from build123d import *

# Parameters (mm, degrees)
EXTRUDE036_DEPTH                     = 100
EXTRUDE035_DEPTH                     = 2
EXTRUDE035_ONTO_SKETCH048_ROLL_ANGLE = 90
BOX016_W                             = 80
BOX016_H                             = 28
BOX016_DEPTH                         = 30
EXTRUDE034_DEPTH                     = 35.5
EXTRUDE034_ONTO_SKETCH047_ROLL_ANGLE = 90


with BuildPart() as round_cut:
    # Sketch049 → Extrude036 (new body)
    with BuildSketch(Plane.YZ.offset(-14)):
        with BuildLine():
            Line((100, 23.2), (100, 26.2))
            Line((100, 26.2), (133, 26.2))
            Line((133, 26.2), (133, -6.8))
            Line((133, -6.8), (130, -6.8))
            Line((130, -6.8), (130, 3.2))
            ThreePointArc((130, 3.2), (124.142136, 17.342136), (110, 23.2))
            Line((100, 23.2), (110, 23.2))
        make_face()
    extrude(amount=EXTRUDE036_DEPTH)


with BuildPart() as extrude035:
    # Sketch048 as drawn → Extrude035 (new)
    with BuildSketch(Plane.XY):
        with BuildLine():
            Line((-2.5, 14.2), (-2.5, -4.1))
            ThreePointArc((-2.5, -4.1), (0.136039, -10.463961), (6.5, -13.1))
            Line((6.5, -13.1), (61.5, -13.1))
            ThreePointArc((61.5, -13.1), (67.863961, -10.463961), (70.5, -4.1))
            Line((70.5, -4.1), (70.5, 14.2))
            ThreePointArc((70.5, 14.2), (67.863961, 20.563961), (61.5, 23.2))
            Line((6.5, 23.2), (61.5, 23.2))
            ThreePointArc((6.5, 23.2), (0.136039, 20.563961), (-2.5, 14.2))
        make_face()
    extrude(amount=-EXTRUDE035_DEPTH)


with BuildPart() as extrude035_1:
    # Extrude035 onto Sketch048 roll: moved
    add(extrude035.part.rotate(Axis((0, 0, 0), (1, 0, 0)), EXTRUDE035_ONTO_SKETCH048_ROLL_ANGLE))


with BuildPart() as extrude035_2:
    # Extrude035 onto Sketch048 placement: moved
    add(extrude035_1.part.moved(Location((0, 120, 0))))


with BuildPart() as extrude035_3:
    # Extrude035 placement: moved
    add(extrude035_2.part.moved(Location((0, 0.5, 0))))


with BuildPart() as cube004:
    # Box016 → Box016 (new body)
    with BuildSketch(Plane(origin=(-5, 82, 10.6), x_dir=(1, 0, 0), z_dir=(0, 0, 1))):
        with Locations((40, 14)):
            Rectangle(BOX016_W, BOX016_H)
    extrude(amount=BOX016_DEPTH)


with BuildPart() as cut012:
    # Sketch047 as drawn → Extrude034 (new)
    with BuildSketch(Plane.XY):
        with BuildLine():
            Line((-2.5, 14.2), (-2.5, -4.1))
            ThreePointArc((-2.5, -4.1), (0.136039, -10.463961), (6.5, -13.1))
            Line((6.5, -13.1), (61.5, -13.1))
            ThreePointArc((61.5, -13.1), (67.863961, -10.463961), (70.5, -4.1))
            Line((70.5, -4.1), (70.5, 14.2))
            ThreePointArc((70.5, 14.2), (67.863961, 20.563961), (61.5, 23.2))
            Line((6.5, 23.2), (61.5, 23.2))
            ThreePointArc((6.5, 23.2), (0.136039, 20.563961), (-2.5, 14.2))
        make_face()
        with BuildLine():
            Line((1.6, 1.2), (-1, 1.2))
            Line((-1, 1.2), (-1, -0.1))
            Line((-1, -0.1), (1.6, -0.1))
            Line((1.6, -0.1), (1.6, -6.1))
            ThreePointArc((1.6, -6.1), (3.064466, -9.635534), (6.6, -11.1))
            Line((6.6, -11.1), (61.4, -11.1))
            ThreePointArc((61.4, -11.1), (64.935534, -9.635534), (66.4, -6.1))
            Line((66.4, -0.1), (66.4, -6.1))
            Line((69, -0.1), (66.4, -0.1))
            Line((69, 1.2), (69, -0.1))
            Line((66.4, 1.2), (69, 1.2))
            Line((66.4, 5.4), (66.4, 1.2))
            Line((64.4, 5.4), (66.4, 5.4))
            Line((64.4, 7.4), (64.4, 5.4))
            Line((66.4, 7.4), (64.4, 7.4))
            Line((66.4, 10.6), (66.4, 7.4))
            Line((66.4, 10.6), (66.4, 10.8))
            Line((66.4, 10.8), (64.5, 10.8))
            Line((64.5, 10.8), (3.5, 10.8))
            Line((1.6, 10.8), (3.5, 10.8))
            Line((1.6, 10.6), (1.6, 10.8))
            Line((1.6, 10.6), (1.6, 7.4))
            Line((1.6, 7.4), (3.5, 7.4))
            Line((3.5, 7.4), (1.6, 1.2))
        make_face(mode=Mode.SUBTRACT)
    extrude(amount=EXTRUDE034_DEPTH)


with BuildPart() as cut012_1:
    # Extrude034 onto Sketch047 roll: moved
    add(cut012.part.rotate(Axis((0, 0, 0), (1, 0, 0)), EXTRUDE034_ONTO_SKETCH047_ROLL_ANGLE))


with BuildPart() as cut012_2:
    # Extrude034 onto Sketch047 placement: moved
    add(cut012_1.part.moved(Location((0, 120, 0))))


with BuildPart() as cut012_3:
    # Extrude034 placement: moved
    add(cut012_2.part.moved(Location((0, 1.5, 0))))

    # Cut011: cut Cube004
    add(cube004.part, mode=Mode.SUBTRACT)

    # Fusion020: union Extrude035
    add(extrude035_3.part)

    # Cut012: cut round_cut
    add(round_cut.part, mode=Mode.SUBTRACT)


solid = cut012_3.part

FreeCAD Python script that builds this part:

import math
import FreeCAD as App
import Part
import Sketcher
from FreeCAD import Vector
Q = App.Units.Quantity

doc = App.newDocument("Part")
params = doc.addObject("Spreadsheet::Sheet", "Params")
for row, (alias, value) in enumerate([
    ("sketch1_radius", "19.999999 mm"),
    ("sketch1_width", "10 mm"),
    ("sketch1_width2", "3 mm"),
    ("pad1_length", "100 mm"),
    ("sketch2_radius", "9 mm"),
    ("sketch2_width", "55 mm"),
    ("sketch2_height", "18.3 mm"),
    ("pad2_length", "2 mm"),
    ("sketch3_width", "80 mm"),
    ("sketch3_height", "28 mm"),
    ("pad3_length", "30 mm"),
    ("sketch4_radius", "9 mm"),
    ("sketch4_radius2", "5 mm"),
    ("sketch4_width", "55 mm"),
    ("sketch4_width2", "2 mm"),
    ("sketch4_height", "6 mm"),
    ("pad4_length", "35.5 mm"),
], start=1):
    params.set(f"A{row}", alias)
    params.set(f"B{row}", "=" + value)
    params.setAlias(f"B{row}", alias)

body = doc.addObject("PartDesign::Body", "Body")

sketch1 = doc.addObject("Sketcher::SketchObject", "Sketch")
body.addObject(sketch1)
sketch1.AttachmentSupport = (doc.YZ_Plane, [""])
sketch1.MapMode = "FlatFace"
sketch1.AttachmentOffset = App.Placement(Vector(0, 0, -14), App.Rotation())
sketch1.addGeometry([
    Part.LineSegment(Vector(100, 26.2, 0), Vector(100, 23.2, 0)),
    Part.LineSegment(Vector(100, 23.2, 0), Vector(110, 23.2, 0)),
    Part.ArcOfCircle(Part.Circle(Vector(110.000001, 3.200001, 0), Vector(0, 0, 1), 19.999999), math.radians(-0.000004), math.radians(90.000004)),
    Part.LineSegment(Vector(130, 3.2, 0), Vector(130, -6.8, 0)),
    Part.LineSegment(Vector(130, -6.8, 0), Vector(133, -6.8, 0)),
    Part.LineSegment(Vector(133, -6.8, 0), Vector(133, 26.2, 0)),
    Part.LineSegment(Vector(133, 26.2, 0), Vector(100, 26.2, 0)),
], False)
sketch1.addConstraint([
    Sketcher.Constraint("Coincident", 0, 2, 1, 1),
    Sketcher.Constraint("Tangent", 1, 2, 2, 2),
    Sketcher.Constraint("Tangent", 2, 1, 3, 1),
    Sketcher.Constraint("Coincident", 3, 2, 4, 1),
    Sketcher.Constraint("Coincident", 4, 2, 5, 1),
    Sketcher.Constraint("Coincident", 5, 2, 6, 1),
    Sketcher.Constraint("Coincident", 6, 2, 0, 1),
    Sketcher.Constraint("Vertical", 0),
    Sketcher.Constraint("Horizontal", 1),
    Sketcher.Constraint("Vertical", 3),
    Sketcher.Constraint("Horizontal", 4),
    Sketcher.Constraint("Vertical", 5),
    Sketcher.Constraint("Horizontal", 6),
    Sketcher.Constraint("Equal", 4, 0),
    Sketcher.Constraint("Equal", 1, 3),
    Sketcher.Constraint("Radius", 2, Q("19.999999 mm")),
    Sketcher.Constraint("DistanceX", 1, 1, 1, 2, Q("10 mm")),
    Sketcher.Constraint("DistanceX", 4, 1, 4, 2, Q("3 mm")),
    Sketcher.Constraint("DistanceX", -1, 1, 2, 3, Q("110.000001 mm")),
    Sketcher.Constraint("DistanceY", -1, 1, 2, 3, Q("3.200001 mm")),
])
sketch1.setExpression("Constraints[15]", "Params.sketch1_radius")
sketch1.setExpression("Constraints[16]", "Params.sketch1_width")
sketch1.setExpression("Constraints[17]", "Params.sketch1_width2")
pad1 = doc.addObject("PartDesign::Pad", "Pad")
body.addObject(pad1)
pad1.Profile = sketch1
pad1.setExpression("Length", "Params.pad1_length")
body2 = doc.addObject("PartDesign::Body", "Body001")

sketch2 = doc.addObject("Sketcher::SketchObject", "Sketch001")
body2.addObject(sketch2)
sketch2.AttachmentSupport = (doc.getObject("XY_Plane001"), [""])
sketch2.MapMode = "FlatFace"
sketch2.addGeometry([
    Part.LineSegment(Vector(-2.5, 14.2, 0), Vector(-2.5, -4.1, 0)),
    Part.ArcOfCircle(Part.Circle(Vector(6.5, -4.1, 0), Vector(0, 0, 1), 9), math.radians(-179.999999), math.radians(-90.000001)),
    Part.LineSegment(Vector(6.5, -13.1, 0), Vector(61.5, -13.1, 0)),
    Part.ArcOfCircle(Part.Circle(Vector(61.5, -4.1, 0), Vector(0, 0, 1), 9), math.radians(-89.999999), math.radians(-0.000001)),
    Part.LineSegment(Vector(70.5, -4.1, 0), Vector(70.5, 14.2, 0)),
    Part.ArcOfCircle(Part.Circle(Vector(61.5, 14.2, 0), Vector(0, 0, 1), 9), math.radians(0.000001), math.radians(89.999999)),
    Part.LineSegment(Vector(61.5, 23.2, 0), Vector(6.5, 23.2, 0)),
    Part.ArcOfCircle(Part.Circle(Vector(6.5, 14.2, 0), Vector(0, 0, 1), 9), math.radians(90.000001), math.radians(179.999999)),
], False)
sketch2.addConstraint([
    Sketcher.Constraint("Tangent", 0, 2, 1, 1),
    Sketcher.Constraint("Tangent", 1, 2, 2, 1),
    Sketcher.Constraint("Tangent", 2, 2, 3, 1),
    Sketcher.Constraint("Tangent", 3, 2, 4, 1),
    Sketcher.Constraint("Tangent", 4, 2, 5, 1),
    Sketcher.Constraint("Tangent", 5, 2, 6, 1),
    Sketcher.Constraint("Tangent", 6, 2, 7, 1),
    Sketcher.Constraint("Tangent", 7, 2, 0, 1),
    Sketcher.Constraint("Vertical", 0),
    Sketcher.Constraint("Horizontal", 2),
    Sketcher.Constraint("Vertical", 4),
    Sketcher.Constraint("Horizontal", 6),
    Sketcher.Constraint("Equal", 1, 3),
    Sketcher.Constraint("Equal", 3, 5),
    Sketcher.Constraint("Equal", 5, 7),
    Sketcher.Constraint("Radius", 1, Q("9 mm")),
    Sketcher.Constraint("DistanceX", 2, 1, 2, 2, Q("55 mm")),
    Sketcher.Constraint("DistanceY", 0, 2, 0, 1, Q("18.3 mm")),
    Sketcher.Constraint("DistanceX", -1, 1, 1, 3, Q("6.5 mm")),
    Sketcher.Constraint("DistanceY", 1, 3, -1, 1, Q("4.1 mm")),
])
sketch2.setExpression("Constraints[15]", "Params.sketch2_radius")
sketch2.setExpression("Constraints[16]", "Params.sketch2_width")
sketch2.setExpression("Constraints[17]", "Params.sketch2_height")
pad2 = doc.addObject("PartDesign::Pad", "Pad001")
body2.addObject(pad2)
pad2.Profile = sketch2
pad2.setExpression("Length", "Params.pad2_length")
pad2.Reversed = True
body3 = doc.addObject("PartDesign::Body", "Body002")
doc.recompute()

body2.Placement = App.Placement(Vector(0, 0, 0), App.Rotation(Vector(1, 0, 0), 90))
boolean = doc.addObject("PartDesign::Boolean", "Boolean")
body3.addObject(boolean)
boolean.Type = "Fuse"
boolean.addObjects([body2])
body4 = doc.addObject("PartDesign::Body", "Body003")
doc.recompute()

body3.Placement = App.Placement(Vector(0, 120, 0), App.Rotation(Vector(0, 0, 1), 0))
boolean2 = doc.addObject("PartDesign::Boolean", "Boolean001")
body4.addObject(boolean2)
boolean2.Type = "Fuse"
boolean2.addObjects([body3])
body5 = doc.addObject("PartDesign::Body", "Body004")
doc.recompute()

body4.Placement = App.Placement(Vector(0, 0.5, 0), App.Rotation(Vector(0, 0, 1), 0))
boolean3 = doc.addObject("PartDesign::Boolean", "Boolean002")
body5.addObject(boolean3)
boolean3.Type = "Fuse"
boolean3.addObjects([body4])
body6 = doc.addObject("PartDesign::Body", "Body005")

sketch3 = doc.addObject("Sketcher::SketchObject", "Sketch002")
body6.addObject(sketch3)
sketch3.AttachmentSupport = (doc.getObject("XY_Plane005"), [""])
sketch3.MapMode = "FlatFace"
sketch3.AttachmentOffset = App.Placement(Vector(0, 0, 10.6), App.Rotation())
sketch3.addGeometry([
    Part.LineSegment(Vector(-5, 110, 0), Vector(-5, 82, 0)),
    Part.LineSegment(Vector(-5, 82, 0), Vector(75, 82, 0)),
    Part.LineSegment(Vector(75, 82, 0), Vector(75, 110, 0)),
    Part.LineSegment(Vector(75, 110, 0), Vector(-5, 110, 0)),
], False)
sketch3.addConstraint([
    Sketcher.Constraint("Coincident", 0, 2, 1, 1),
    Sketcher.Constraint("Coincident", 1, 2, 2, 1),
    Sketcher.Constraint("Coincident", 2, 2, 3, 1),
    Sketcher.Constraint("Coincident", 3, 2, 0, 1),
    Sketcher.Constraint("Vertical", 0),
    Sketcher.Constraint("Horizontal", 1),
    Sketcher.Constraint("Vertical", 2),
    Sketcher.Constraint("Horizontal", 3),
    Sketcher.Constraint("DistanceX", 1, 1, 1, 2, Q("80 mm")),
    Sketcher.Constraint("DistanceY", 0, 2, 0, 1, Q("28 mm")),
    Sketcher.Constraint("DistanceX", 0, 2, -1, 1, Q("5 mm")),
    Sketcher.Constraint("DistanceY", -1, 1, 0, 2, Q("82 mm")),
])
sketch3.setExpression("Constraints[8]", "Params.sketch3_width")
sketch3.setExpression("Constraints[9]", "Params.sketch3_height")
pad3 = doc.addObject("PartDesign::Pad", "Pad002")
body6.addObject(pad3)
pad3.Profile = sketch3
pad3.setExpression("Length", "Params.pad3_length")
body7 = doc.addObject("PartDesign::Body", "Body006")

sketch4 = doc.addObject("Sketcher::SketchObject", "Sketch003")
body7.addObject(sketch4)
sketch4.AttachmentSupport = (doc.getObject("XY_Plane006"), [""])
sketch4.MapMode = "FlatFace"
sketch4.addGeometry([
    Part.LineSegment(Vector(-2.5, 14.2, 0), Vector(-2.5, -4.1, 0)),
    Part.ArcOfCircle(Part.Circle(Vector(6.5, -4.1, 0), Vector(0, 0, 1), 9), math.radians(-179.999999), math.radians(-90.000001)),
    Part.LineSegment(Vector(6.5, -13.1, 0), Vector(61.5, -13.1, 0)),
    Part.ArcOfCircle(Part.Circle(Vector(61.5, -4.1, 0), Vector(0, 0, 1), 9), math.radians(-89.999999), math.radians(-0.000001)),
    Part.LineSegment(Vector(70.5, -4.1, 0), Vector(70.5, 14.2, 0)),
    Part.ArcOfCircle(Part.Circle(Vector(61.5, 14.2, 0), Vector(0, 0, 1), 9), math.radians(0.000001), math.radians(89.999999)),
    Part.LineSegment(Vector(61.5, 23.2, 0), Vector(6.5, 23.2, 0)),
    Part.ArcOfCircle(Part.Circle(Vector(6.5, 14.2, 0), Vector(0, 0, 1), 9), math.radians(90.000001), math.radians(179.999999)),
    Part.LineSegment(Vector(-1, 1.2, 0), Vector(1.6, 1.2, 0)),
    Part.LineSegment(Vector(1.6, 1.2, 0), Vector(3.5, 7.4, 0)),
    Part.LineSegment(Vector(3.5, 7.4, 0), Vector(1.6, 7.4, 0)),
    Part.LineSegment(Vector(1.6, 7.4, 0), Vector(1.6, 10.8, 0)),
    Part.LineSegment(Vector(1.6, 10.8, 0), Vector(66.4, 10.8, 0)),
    Part.LineSegment(Vector(66.4, 10.8, 0), Vector(66.4, 7.4, 0)),
    Part.LineSegment(Vector(66.4, 7.4, 0), Vector(64.4, 7.4, 0)),
    Part.LineSegment(Vector(64.4, 7.4, 0), Vector(64.4, 5.4, 0)),
    Part.LineSegment(Vector(64.4, 5.4, 0), Vector(66.4, 5.4, 0)),
    Part.LineSegment(Vector(66.4, 5.4, 0), Vector(66.4, 1.2, 0)),
    Part.LineSegment(Vector(66.4, 1.2, 0), Vector(69, 1.2, 0)),
    Part.LineSegment(Vector(69, 1.2, 0), Vector(69, -0.1, 0)),
    Part.LineSegment(Vector(69, -0.1, 0), Vector(66.4, -0.1, 0)),
    Part.LineSegment(Vector(66.4, -0.1, 0), Vector(66.4, -6.1, 0)),
    Part.ArcOfCircle(Part.Circle(Vector(61.4, -6.1, 0), Vector(0, 0, 1), 5), math.radians(-90.000004), math.radians(0.000004)),
    Part.LineSegment(Vector(61.4, -11.1, 0), Vector(6.6, -11.1, 0)),
    Part.ArcOfCircle(Part.Circle(Vector(6.6, -6.1, 0), Vector(0, 0, 1), 5), math.radians(179.999996), math.radians(270.000004)),
    Part.LineSegment(Vector(1.6, -6.1, 0), Vector(1.6, -0.1, 0)),
    Part.LineSegment(Vector(1.6, -0.1, 0), Vector(-1, -0.1, 0)),
    Part.LineSegment(Vector(-1, -0.1, 0), Vector(-1, 1.2, 0)),
], False)
sketch4.addConstraint([
    Sketcher.Constraint("Tangent", 0, 2, 1, 1),
    Sketcher.Constraint("Tangent", 1, 2, 2, 1),
    Sketcher.Constraint("Tangent", 2, 2, 3, 1),
    Sketcher.Constraint("Tangent", 3, 2, 4, 1),
    Sketcher.Constraint("Tangent", 4, 2, 5, 1),
    Sketcher.Constraint("Tangent", 5, 2, 6, 1),
    Sketcher.Constraint("Tangent", 6, 2, 7, 1),
    Sketcher.Constraint("Tangent", 7, 2, 0, 1),
    Sketcher.Constraint("Coincident", 8, 2, 9, 1),
    Sketcher.Constraint("Coincident", 9, 2, 10, 1),
    Sketcher.Constraint("Coincident", 10, 2, 11, 1),
    Sketcher.Constraint("Coincident", 11, 2, 12, 1),
    Sketcher.Constraint("Coincident", 12, 2, 13, 1),
    Sketcher.Constraint("Coincident", 13, 2, 14, 1),
    Sketcher.Constraint("Coincident", 14, 2, 15, 1),
    Sketcher.Constraint("Coincident", 15, 2, 16, 1),
    Sketcher.Constraint("Coincident", 16, 2, 17, 1),
    Sketcher.Constraint("Coincident", 17, 2, 18, 1),
    Sketcher.Constraint("Coincident", 18, 2, 19, 1),
    Sketcher.Constraint("Coincident", 19, 2, 20, 1),
    Sketcher.Constraint("Coincident", 20, 2, 21, 1),
    Sketcher.Constraint("Tangent", 21, 2, 22, 2),
    Sketcher.Constraint("Tangent", 22, 1, 23, 1),
    Sketcher.Constraint("Tangent", 23, 2, 24, 2),
    Sketcher.Constraint("Tangent", 24, 1, 25, 1),
    Sketcher.Constraint("Coincident", 25, 2, 26, 1),
    Sketcher.Constraint("Coincident", 26, 2, 27, 1),
    Sketcher.Constraint("Coincident", 27, 2, 8, 1),
    Sketcher.Constraint("Vertical", 0),
    Sketcher.Constraint("Horizontal", 2),
    Sketcher.Constraint("Vertical", 4),
    Sketcher.Constraint("Horizontal", 6),
    Sketcher.Constraint("Horizontal", 8),
    Sketcher.Constraint("Horizontal", 10),
    Sketcher.Constraint("Vertical", 11),
    Sketcher.Constraint("Horizontal", 12),
    Sketcher.Constraint("Vertical", 13),
    Sketcher.Constraint("Horizontal", 14),
    Sketcher.Constraint("Vertical", 15),
    Sketcher.Constraint("Horizontal", 16),
    Sketcher.Constraint("Vertical", 17),
    Sketcher.Constraint("Horizontal", 18),
    Sketcher.Constraint("Vertical", 19),
    Sketcher.Constraint("Horizontal", 20),
    Sketcher.Constraint("Vertical", 21),
    Sketcher.Constraint("Horizontal", 23),
    Sketcher.Constraint("Vertical", 25),
    Sketcher.Constraint("Horizontal", 26),
    Sketcher.Constraint("Vertical", 27),
    Sketcher.Constraint("Equal", 1, 3),
    Sketcher.Constraint("Equal", 3, 5),
    Sketcher.Constraint("Equal", 5, 7),
    Sketcher.Constraint("Equal", 22, 24),
    Sketcher.Constraint("Horizontal", 10, 2, 13, 2),
    Sketcher.Constraint("Horizontal", 8, 2, 17, 2),
    Sketcher.Constraint("Horizontal", 20, 2, 25, 2),
    Sketcher.Constraint("Vertical", 8, 2, 10, 2),
    Sketcher.Constraint("Vertical", 13, 2, 16, 2),
    Sketcher.Constraint("Vertical", 17, 2, 20, 2),
    Sketcher.Constraint("Vertical", 11, 2, 24, 1),
    Sketcher.Constraint("Equal", 8, 18),
    Sketcher.Constraint("Equal", 16, 15),
    Sketcher.Constraint("Radius", 1, Q("9 mm")),
    Sketcher.Constraint("Radius", 22, Q("5 mm")),
    Sketcher.Constraint("DistanceX", 2, 1, 2, 2, Q("55 mm")),
    Sketcher.Constraint("DistanceX", 14, 2, 14, 1, Q("2 mm")),
    Sketcher.Constraint("DistanceY", 21, 2, 21, 1, Q("6 mm")),
    Sketcher.Constraint("DistanceX", 8, 1, 8, 2, Q("2.6 mm")),
    Sketcher.Constraint("DistanceX", 10, 2, 10, 1, Q("1.9 mm")),
    Sketcher.Constraint("DistanceX", 12, 1, 12, 2, Q("64.8 mm")),
    Sketcher.Constraint("DistanceY", 0, 2, 0, 1, Q("18.3 mm")),
    Sketcher.Constraint("DistanceY", 11, 1, 11, 2, Q("3.4 mm")),
    Sketcher.Constraint("DistanceY", 17, 2, 17, 1, Q("4.2 mm")),
    Sketcher.Constraint("DistanceY", 19, 2, 19, 1, Q("1.3 mm")),
    Sketcher.Constraint("DistanceX", -1, 1, 18, 2, Q("69 mm")),
    Sketcher.Constraint("DistanceY", 22, 3, 3, 3, Q("2 mm")),
    Sketcher.Constraint("DistanceX", 9, 2, 7, 3, Q("3 mm")),
    Sketcher.Constraint("DistanceY", 1, 3, -1, 1, Q("4.1 mm")),
])
sketch4.setExpression("Constraints[62]", "Params.sketch4_radius")
sketch4.setExpression("Constraints[63]", "Params.sketch4_radius2")
sketch4.setExpression("Constraints[64]", "Params.sketch4_width")
sketch4.setExpression("Constraints[65]", "Params.sketch4_width2")
sketch4.setExpression("Constraints[66]", "Params.sketch4_height")
pad4 = doc.addObject("PartDesign::Pad", "Pad003")
body7.addObject(pad4)
pad4.Profile = sketch4
pad4.setExpression("Length", "Params.pad4_length")
body8 = doc.addObject("PartDesign::Body", "Body007")
doc.recompute()

body7.Placement = App.Placement(Vector(0, 0, 0), App.Rotation(Vector(1, 0, 0), 90))
boolean4 = doc.addObject("PartDesign::Boolean", "Boolean003")
body8.addObject(boolean4)
boolean4.Type = "Fuse"
boolean4.addObjects([body7])
body9 = doc.addObject("PartDesign::Body", "Body008")
doc.recompute()

body8.Placement = App.Placement(Vector(0, 120, 0), App.Rotation(Vector(0, 0, 1), 0))
boolean5 = doc.addObject("PartDesign::Boolean", "Boolean004")
body9.addObject(boolean5)
boolean5.Type = "Fuse"
boolean5.addObjects([body8])
body10 = doc.addObject("PartDesign::Body", "Body009")
doc.recompute()

body9.Placement = App.Placement(Vector(0, 1.5, 0), App.Rotation(Vector(0, 0, 1), 0))
boolean6 = doc.addObject("PartDesign::Boolean", "Boolean005")
body10.addObject(boolean6)
boolean6.Type = "Fuse"
boolean6.addObjects([body9])
doc.recompute()

boolean7 = doc.addObject("PartDesign::Boolean", "Boolean006")
body10.addObject(boolean7)
boolean7.Type = "Cut"
boolean7.addObjects([body6])
doc.recompute()

boolean8 = doc.addObject("PartDesign::Boolean", "Boolean007")
body10.addObject(boolean8)
boolean8.Type = "Fuse"
boolean8.addObjects([body5])
doc.recompute()

boolean9 = doc.addObject("PartDesign::Boolean", "Boolean008")
body10.addObject(boolean9)
boolean9.Type = "Cut"
boolean9.addObjects([body])

doc.recompute()
